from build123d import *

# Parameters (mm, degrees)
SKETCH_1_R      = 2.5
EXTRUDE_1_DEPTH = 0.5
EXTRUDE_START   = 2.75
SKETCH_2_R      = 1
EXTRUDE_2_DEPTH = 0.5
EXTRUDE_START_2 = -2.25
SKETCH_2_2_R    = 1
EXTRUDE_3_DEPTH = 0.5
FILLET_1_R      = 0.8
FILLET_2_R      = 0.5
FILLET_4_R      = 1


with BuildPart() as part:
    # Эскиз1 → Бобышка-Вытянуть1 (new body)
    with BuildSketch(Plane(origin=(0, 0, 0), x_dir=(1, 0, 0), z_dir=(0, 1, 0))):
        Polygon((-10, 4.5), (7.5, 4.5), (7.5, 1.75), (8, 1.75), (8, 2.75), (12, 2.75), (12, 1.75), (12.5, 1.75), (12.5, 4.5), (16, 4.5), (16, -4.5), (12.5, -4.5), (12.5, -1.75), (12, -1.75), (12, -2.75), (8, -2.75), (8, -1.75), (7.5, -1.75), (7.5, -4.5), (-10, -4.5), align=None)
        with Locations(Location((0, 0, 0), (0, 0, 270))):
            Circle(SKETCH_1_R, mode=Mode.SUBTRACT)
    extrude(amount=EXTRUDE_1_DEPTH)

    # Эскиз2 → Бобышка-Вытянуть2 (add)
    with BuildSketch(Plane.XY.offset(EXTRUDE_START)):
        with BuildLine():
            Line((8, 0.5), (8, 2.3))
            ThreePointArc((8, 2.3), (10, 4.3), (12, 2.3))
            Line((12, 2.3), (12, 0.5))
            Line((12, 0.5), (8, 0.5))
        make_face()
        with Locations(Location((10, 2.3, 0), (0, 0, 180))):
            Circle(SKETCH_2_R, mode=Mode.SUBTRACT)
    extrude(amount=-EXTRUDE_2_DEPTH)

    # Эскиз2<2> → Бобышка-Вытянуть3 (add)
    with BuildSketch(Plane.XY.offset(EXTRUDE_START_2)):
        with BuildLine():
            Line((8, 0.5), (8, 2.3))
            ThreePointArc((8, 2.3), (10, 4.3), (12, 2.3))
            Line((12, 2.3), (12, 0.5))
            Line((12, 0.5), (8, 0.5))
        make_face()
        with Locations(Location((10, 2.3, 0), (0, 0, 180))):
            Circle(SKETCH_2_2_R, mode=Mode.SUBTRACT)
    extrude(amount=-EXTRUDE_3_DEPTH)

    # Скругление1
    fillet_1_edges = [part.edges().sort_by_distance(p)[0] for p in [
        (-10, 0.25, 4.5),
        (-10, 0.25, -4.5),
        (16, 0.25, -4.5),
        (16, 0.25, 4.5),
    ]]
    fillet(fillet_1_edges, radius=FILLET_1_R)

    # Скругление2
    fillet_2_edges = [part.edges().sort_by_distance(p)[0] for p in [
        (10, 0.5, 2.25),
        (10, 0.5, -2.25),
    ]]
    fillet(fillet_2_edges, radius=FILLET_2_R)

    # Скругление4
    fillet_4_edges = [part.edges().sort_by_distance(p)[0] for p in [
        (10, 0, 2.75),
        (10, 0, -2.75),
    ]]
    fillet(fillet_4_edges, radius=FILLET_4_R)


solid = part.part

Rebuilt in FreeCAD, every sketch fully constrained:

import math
import FreeCAD as App
import Part
import Sketcher

V = App.Vector
Q = App.Units.Quantity


def edges_at(feature, points):
    """Names of the edges that pass closest to the given points."""
    edges = feature.Shape.Edges
    near = lambda p: min(range(len(edges)), key=lambda i: edges[i].distToShape(Part.Vertex(*p))[0])
    return sorted({f"Edge{near(p) + 1}" for p in points})

doc = App.newDocument("Part")
body = doc.addObject("PartDesign::Body", "Body")

sketch1 = doc.addObject("Sketcher::SketchObject", "Sketch")
body.addObject(sketch1)
sketch1.AttachmentSupport = (doc.XZ_Plane, [""])
sketch1.MapMode = "FlatFace"
sketch1.addGeometry([
    Part.LineSegment(V(7.5, -4.5, 0), V(-10, -4.5, 0)),
    Part.LineSegment(V(-10, -4.5, 0), V(-10, 4.5, 0)),
    Part.LineSegment(V(-10, 4.5, 0), V(7.5, 4.5, 0)),
    Part.LineSegment(V(7.5, 4.5, 0), V(7.5, 1.75, 0)),
    Part.LineSegment(V(7.5, 1.75, 0), V(8, 1.75, 0)),
    Part.LineSegment(V(8, 1.75, 0), V(8, 2.75, 0)),
    Part.LineSegment(V(8, 2.75, 0), V(12, 2.75, 0)),
    Part.LineSegment(V(12, 2.75, 0), V(12, 1.75, 0)),
    Part.LineSegment(V(12, 1.75, 0), V(12.5, 1.75, 0)),
    Part.LineSegment(V(12.5, 1.75, 0), V(12.5, 4.5, 0)),
    Part.LineSegment(V(12.5, 4.5, 0), V(16, 4.5, 0)),
    Part.LineSegment(V(16, 4.5, 0), V(16, -4.5, 0)),
    Part.LineSegment(V(16, -4.5, 0), V(12.5, -4.5, 0)),
    Part.LineSegment(V(12.5, -4.5, 0), V(12.5, -1.75, 0)),
    Part.LineSegment(V(12.5, -1.75, 0), V(12, -1.75, 0)),
    Part.LineSegment(V(12, -1.75, 0), V(12, -2.75, 0)),
    Part.LineSegment(V(12, -2.75, 0), V(8, -2.75, 0)),
    Part.LineSegment(V(8, -2.75, 0), V(8, -1.75, 0)),
    Part.LineSegment(V(8, -1.75, 0), V(7.5, -1.75, 0)),
    Part.LineSegment(V(7.5, -1.75, 0), V(7.5, -4.5, 0)),
    Part.Circle(V(0, 0, 0), V(0, 0, 1), 2.5),
], False)
sketch1.addConstraint([
    Sketcher.Constraint("Coincident", 0, 2, 1, 1),
    Sketcher.Constraint("Coincident", 1, 2, 2, 1),
    Sketcher.Constraint("Coincident", 2, 2, 3, 1),
    Sketcher.Constraint("Coincident", 3, 2, 4, 1),
    Sketcher.Constraint("Coincident", 4, 2, 5, 1),
    Sketcher.Constraint("Coincident", 5, 2, 6, 1),
    Sketcher.Constraint("Coincident", 6, 2, 7, 1),
    Sketcher.Constraint("Coincident", 7, 2, 8, 1),
    Sketcher.Constraint("Coincident", 8, 2, 9, 1),
    Sketcher.Constraint("Coincident", 9, 2, 10, 1),
    Sketcher.Constraint("Coincident", 10, 2, 11, 1),
    Sketcher.Constraint("Coincident", 11, 2, 12, 1),
    Sketcher.Constraint("Coincident", 12, 2, 13, 1),
    Sketcher.Constraint("Coincident", 13, 2, 14, 1),
    Sketcher.Constraint("Coincident", 14, 2, 15, 1),
    Sketcher.Constraint("Coincident", 15, 2, 16, 1),
    Sketcher.Constraint("Coincident", 16, 2, 17, 1),
    Sketcher.Constraint("Coincident", 17, 2, 18, 1),
    Sketcher.Constraint("Coincident", 18, 2, 19, 1),
    Sketcher.Constraint("Coincident", 19, 2, 0, 1),
    Sketcher.Constraint("Horizontal", 0),
    Sketcher.Constraint("Vertical", 1),
    Sketcher.Constraint("Horizontal", 2),
    Sketcher.Constraint("Vertical", 3),
    Sketcher.Constraint("Horizontal", 4),
    Sketcher.Constraint("Vertical", 5),
    Sketcher.Constraint("Horizontal", 6),
    Sketcher.Constraint("Vertical", 7),
    Sketcher.Constraint("Horizontal", 8),
    Sketcher.Constraint("Vertical", 9),
    Sketcher.Constraint("Horizontal", 10),
    Sketcher.Constraint("Vertical", 11),
    Sketcher.Constraint("Horizontal", 12),
    Sketcher.Constraint("Vertical", 13),
    Sketcher.Constraint("Horizontal", 14),
    Sketcher.Constraint("Vertical", 15),
    Sketcher.Constraint("Horizontal", 16),
    Sketcher.Constraint("Vertical", 17),
    Sketcher.Constraint("Horizontal", 18),
    Sketcher.Constraint("Vertical", 19),
    Sketcher.Constraint("Coincident", 20, 3, -1, 1),
    Sketcher.Constraint("Symmetric", 9, 2, 12, 2, -1),
    Sketcher.Constraint("Symmetric", 7, 2, 14, 2, -1),
    Sketcher.Constraint("Symmetric", 5, 2, 16, 2, -1),
    Sketcher.Constraint("Symmetric", 3, 2, 18, 2, -1),
    Sketcher.Constraint("Horizontal", 4, 2, 7, 2),
    Sketcher.Constraint("Horizontal", 2, 2, 9, 2),
    Sketcher.Constraint("Horizontal", 0, 2, 11, 2),
    Sketcher.Constraint("Equal", 4, 8),
    Sketcher.Constraint("Diameter", 20, Q("5 mm")),
    Sketcher.Constraint("DistanceX", 6, 1, 6, 2, Q("4 mm")),
    Sketcher.Constraint("DistanceY", 1, 1, 1, 2, Q("9 mm")),
    Sketcher.Constraint("DistanceY", 5, 1, 5, 2, Q("1 mm")),
    Sketcher.Constraint("DistanceX", 0, 2, 0, 1, Q("17.5 mm")),
    Sketcher.Constraint("DistanceX", 4, 1, 4, 2, Q("0.5 mm")),
    Sketcher.Constraint("DistanceX", 10, 1, 10, 2, Q("3.5 mm")),
    Sketcher.Constraint("DistanceX", 0, 2, -1, 1, Q("10 mm")),
    Sketcher.Constraint("DistanceY", 3, 2, 3, 1, Q("2.75 mm")),
])
pad1 = doc.addObject("PartDesign::Pad", "Pad")
body.addObject(pad1)
pad1.Profile = sketch1
pad1.Length = 0.5
pad1.Reversed = True

sketch2 = doc.addObject("Sketcher::SketchObject", "Sketch001")
body.addObject(sketch2)
sketch2.AttachmentSupport = (doc.XY_Plane, [""])
sketch2.MapMode = "FlatFace"
sketch2.AttachmentOffset = App.Placement(V(0, 0, 2.75), App.Rotation())
sketch2.addGeometry([
    Part.LineSegment(V(8, 2.3, 0), V(8, 0.5, 0)),
    Part.LineSegment(V(8, 0.5, 0), V(12, 0.5, 0)),
    Part.LineSegment(V(12, 0.5, 0), V(12, 2.3, 0)),
    Part.ArcOfCircle(Part.Circle(V(10, 2.3, 0), V(0, 0, 1), 2), math.radians(0), math.radians(180)),
    Part.Circle(V(10, 2.3, 0), V(0, 0, 1), 1),
], False)
sketch2.addConstraint([
    Sketcher.Constraint("Coincident", 0, 2, 1, 1),
    Sketcher.Constraint("Coincident", 1, 2, 2, 1),
    Sketcher.Constraint("Tangent", 2, 2, 3, 1),
    Sketcher.Constraint("Tangent", 3, 2, 0, 1),
    Sketcher.Constraint("Vertical", 0),
    Sketcher.Constraint("Horizontal", 1),
    Sketcher.Constraint("Vertical", 2),
    Sketcher.Constraint("Coincident", 4, 3, 3, 3),
    Sketcher.Constraint("Diameter", 4, Q("2 mm")),
    Sketcher.Constraint("Radius", 3, Q("2 mm")),
    Sketcher.Constraint("DistanceY", 0, 2, 0, 1, Q("1.8 mm")),
    Sketcher.Constraint("DistanceX", -1, 1, 3, 3, Q("10 mm")),
    Sketcher.Constraint("DistanceY", -1, 1, 3, 3, Q("2.3 mm")),
])
pad2 = doc.addObject("PartDesign::Pad", "Pad001")
body.addObject(pad2)
pad2.Profile = sketch2
pad2.Length = 0.5
pad2.Reversed = True

sketch3 = doc.addObject("Sketcher::SketchObject", "Sketch002")
body.addObject(sketch3)
sketch3.AttachmentSupport = (doc.XY_Plane, [""])
sketch3.MapMode = "FlatFace"
sketch3.AttachmentOffset = App.Placement(V(0, 0, -2.25), App.Rotation())
sketch3.addGeometry([
    Part.LineSegment(V(8, 2.3, 0), V(8, 0.5, 0)),
    Part.LineSegment(V(8, 0.5, 0), V(12, 0.5, 0)),
    Part.LineSegment(V(12, 0.5, 0), V(12, 2.3, 0)),
    Part.ArcOfCircle(Part.Circle(V(10, 2.3, 0), V(0, 0, 1), 2), math.radians(0), math.radians(180)),
    Part.Circle(V(10, 2.3, 0), V(0, 0, 1), 1),
], False)
sketch3.addConstraint([
    Sketcher.Constraint("Coincident", 0, 2, 1, 1),
    Sketcher.Constraint("Coincident", 1, 2, 2, 1),
    Sketcher.Constraint("Tangent", 2, 2, 3, 1),
    Sketcher.Constraint("Tangent", 3, 2, 0, 1),
    Sketcher.Constraint("Vertical", 0),
    Sketcher.Constraint("Horizontal", 1),
    Sketcher.Constraint("Vertical", 2),
    Sketcher.Constraint("Coincident", 4, 3, 3, 3),
    Sketcher.Constraint("Diameter", 4, Q("2 mm")),
    Sketcher.Constraint("Radius", 3, Q("2 mm")),
    Sketcher.Constraint("DistanceY", 0, 2, 0, 1, Q("1.8 mm")),
    Sketcher.Constraint("DistanceX", -1, 1, 3, 3, Q("10 mm")),
    Sketcher.Constraint("DistanceY", -1, 1, 3, 3, Q("2.3 mm")),
])
pad3 = doc.addObject("PartDesign::Pad", "Pad002")
body.addObject(pad3)
pad3.Profile = sketch3
pad3.Length = 0.5
pad3.Reversed = True
doc.recompute()

fillet = doc.addObject("PartDesign::Fillet", "Fillet")
body.addObject(fillet)
fillet.Base = (pad3, edges_at(pad3, [
    (-10, 0.25, 4.5),
    (-10, 0.25, -4.5),
    (16, 0.25, -4.5),
    (16, 0.25, 4.5),
]))
fillet.Radius = 0.8
doc.recompute()

fillet2 = doc.addObject("PartDesign::Fillet", "Fillet001")
body.addObject(fillet2)
fillet2.Base = (fillet, edges_at(fillet, [(10, 0.5, 2.25), (10, 0.5, -2.25)]))
fillet2.Radius = 0.5
doc.recompute()

fillet3 = doc.addObject("PartDesign::Fillet", "Fillet002")
body.addObject(fillet3)
fillet3.Base = (fillet2, edges_at(fillet2, [(10, 0, 2.75), (10, 0, -2.75)]))
fillet3.Radius = 1

doc.recompute()
